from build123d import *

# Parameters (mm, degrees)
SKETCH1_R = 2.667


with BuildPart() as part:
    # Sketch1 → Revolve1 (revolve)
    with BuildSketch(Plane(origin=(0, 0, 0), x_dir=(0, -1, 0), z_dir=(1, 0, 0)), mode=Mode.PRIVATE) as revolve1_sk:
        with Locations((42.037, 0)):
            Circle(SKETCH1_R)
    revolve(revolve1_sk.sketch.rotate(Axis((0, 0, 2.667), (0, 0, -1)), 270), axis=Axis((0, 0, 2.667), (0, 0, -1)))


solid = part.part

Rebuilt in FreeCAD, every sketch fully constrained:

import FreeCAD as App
import Part
import Sketcher
Q = App.Units.Quantity

doc = App.newDocument("Part")
body = doc.addObject("PartDesign::Body", "Body")

sketch1 = body.newObject("Sketcher::SketchObject", "Sketch")
sketch1.AttachmentSupport = (doc.getObject("YZ_Plane"), [""])
sketch1.MapMode = "FlatFace"
sketch1.addGeometry(Part.Circle(App.Vector(-42.037, 0, 0), App.Vector(0, 0, 1), 2.667), False)
sketch1.addConstraint([
    Sketcher.Constraint("PointOnObject", 0, 3, -1),
    Sketcher.Constraint("Diameter", 0, Q("0.21 in")),
    Sketcher.Constraint("DistanceX", 0, 3, -1, 1, Q("1.655 in")),
])
revolution = body.newObject("PartDesign::Revolution", "Revolution")
revolution.Profile = sketch1
revolution.ReferenceAxis = (sketch1, ["V_Axis"])
revolution.Angle = 360

doc.recompute()
